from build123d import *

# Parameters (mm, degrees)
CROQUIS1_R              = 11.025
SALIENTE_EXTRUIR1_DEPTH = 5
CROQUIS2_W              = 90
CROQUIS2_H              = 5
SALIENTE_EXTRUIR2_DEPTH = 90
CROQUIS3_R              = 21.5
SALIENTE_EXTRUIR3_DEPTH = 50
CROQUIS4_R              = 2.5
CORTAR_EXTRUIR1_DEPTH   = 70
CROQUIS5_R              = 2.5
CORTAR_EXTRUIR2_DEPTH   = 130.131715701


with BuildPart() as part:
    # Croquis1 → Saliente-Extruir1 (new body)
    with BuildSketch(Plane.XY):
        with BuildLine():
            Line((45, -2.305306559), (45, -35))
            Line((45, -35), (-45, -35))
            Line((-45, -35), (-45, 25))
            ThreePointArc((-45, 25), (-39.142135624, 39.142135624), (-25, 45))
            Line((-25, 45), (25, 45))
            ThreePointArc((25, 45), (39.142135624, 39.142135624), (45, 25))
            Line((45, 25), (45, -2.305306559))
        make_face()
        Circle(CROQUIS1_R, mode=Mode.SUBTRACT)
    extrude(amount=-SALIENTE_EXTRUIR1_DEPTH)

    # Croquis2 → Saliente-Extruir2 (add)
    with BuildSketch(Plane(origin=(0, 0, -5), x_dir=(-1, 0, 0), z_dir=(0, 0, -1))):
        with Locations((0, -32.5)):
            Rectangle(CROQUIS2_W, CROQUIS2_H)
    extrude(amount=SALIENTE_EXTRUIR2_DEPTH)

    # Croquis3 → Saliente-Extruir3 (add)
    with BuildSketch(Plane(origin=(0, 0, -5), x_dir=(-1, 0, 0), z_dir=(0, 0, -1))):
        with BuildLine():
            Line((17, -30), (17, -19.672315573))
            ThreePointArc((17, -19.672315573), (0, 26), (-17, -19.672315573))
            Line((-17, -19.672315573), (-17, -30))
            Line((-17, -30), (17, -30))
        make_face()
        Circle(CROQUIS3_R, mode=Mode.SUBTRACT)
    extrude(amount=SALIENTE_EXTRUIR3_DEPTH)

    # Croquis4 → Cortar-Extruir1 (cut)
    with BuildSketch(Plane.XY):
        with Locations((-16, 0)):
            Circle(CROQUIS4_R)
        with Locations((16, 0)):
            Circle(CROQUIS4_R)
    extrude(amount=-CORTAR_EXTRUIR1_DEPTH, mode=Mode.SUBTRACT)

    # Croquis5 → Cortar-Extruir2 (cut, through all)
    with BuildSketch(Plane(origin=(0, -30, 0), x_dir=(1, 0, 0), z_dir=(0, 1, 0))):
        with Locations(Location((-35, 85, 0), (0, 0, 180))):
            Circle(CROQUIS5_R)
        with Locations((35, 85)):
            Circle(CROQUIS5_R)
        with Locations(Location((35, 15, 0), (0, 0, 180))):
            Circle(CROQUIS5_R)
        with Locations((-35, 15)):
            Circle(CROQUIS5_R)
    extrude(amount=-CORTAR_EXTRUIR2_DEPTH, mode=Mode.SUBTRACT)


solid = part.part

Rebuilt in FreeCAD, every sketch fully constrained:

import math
import FreeCAD as App
import Part
import Sketcher

V = App.Vector
Q = App.Units.Quantity

doc = App.newDocument("Part")
body = doc.addObject("PartDesign::Body", "Body")

# Sketch on XY plane
sketch1 = doc.addObject("Sketcher::SketchObject", "Sketch")
body.addObject(sketch1)
sketch1.AttachmentSupport = (doc.XY_Plane, [""])
sketch1.MapMode = "FlatFace"
sketch1.addGeometry(Part.LineSegment(V(-45, -35, 0), V(45, -35, 0)), False)
sketch1.addGeometry(Part.LineSegment(V(45, -35, 0), V(45, 25, 0)), False)
sketch1.addGeometry(Part.ArcOfCircle(Part.Circle(V(25, 25, 0), V(0, 0, 1), 20), math.radians(0), math.radians(90)), False)
sketch1.addGeometry(Part.LineSegment(V(25, 45, 0), V(-25, 45, 0)), False)
sketch1.addGeometry(Part.ArcOfCircle(Part.Circle(V(-25, 25, 0), V(0, 0, 1), 20), math.radians(90), math.radians(180)), False)
sketch1.addGeometry(Part.LineSegment(V(-45, 25, 0), V(-45, -35, 0)), False)
sketch1.addGeometry(Part.Circle(V(0, 0, 0), V(0, 0, 1), 11), False)
sketch1.addConstraint(Sketcher.Constraint("Coincident", 0, 2, 1, 1))
sketch1.addConstraint(Sketcher.Constraint("Tangent", 1, 2, 2, 1))
sketch1.addConstraint(Sketcher.Constraint("Tangent", 2, 2, 3, 1))
sketch1.addConstraint(Sketcher.Constraint("Tangent", 3, 2, 4, 1))
sketch1.addConstraint(Sketcher.Constraint("Tangent", 4, 2, 5, 1))
sketch1.addConstraint(Sketcher.Constraint("Coincident", 5, 2, 0, 1))
sketch1.addConstraint(Sketcher.Constraint("Horizontal", 0))
sketch1.addConstraint(Sketcher.Constraint("Vertical", 1))
sketch1.addConstraint(Sketcher.Constraint("Horizontal", 3))
sketch1.addConstraint(Sketcher.Constraint("Vertical", 5))
sketch1.addConstraint(Sketcher.Constraint("Coincident", 6, 3, -1, 1))
sketch1.addConstraint(Sketcher.Constraint("Equal", 2, 4))
sketch1.addConstraint(Sketcher.Constraint("Radius", 2, Q("20 mm")))
sketch1.addConstraint(Sketcher.Constraint("Diameter", 6, Q("22.05 mm")))
sketch1.addConstraint(Sketcher.Constraint("DistanceX", 0, 1, 0, 2, Q("90 mm")))
sketch1.addConstraint(Sketcher.Constraint("DistanceY", 1, 1, 1, 2, Q("60 mm")))
sketch1.addConstraint(Sketcher.Constraint("DistanceX", -1, 1, 2, 3, Q("25 mm")))
sketch1.addConstraint(Sketcher.Constraint("DistanceY", -1, 1, 2, 3, Q("25 mm")))
pad1 = doc.addObject("PartDesign::Pad", "Pad")
body.addObject(pad1)
pad1.Profile = sketch1
pad1.Length = 5
pad1.Reversed = True

# Sketch on XY plane
sketch2 = doc.addObject("Sketcher::SketchObject", "Sketch001")
body.addObject(sketch2)
sketch2.AttachmentSupport = (doc.XY_Plane, [""])
sketch2.MapMode = "FlatFace"
sketch2.AttachmentOffset = App.Placement(V(0, 0, -5), App.Rotation())
sketch2.addGeometry(Part.LineSegment(V(45, -30, 0), V(45, -35, 0)), False)
sketch2.addGeometry(Part.LineSegment(V(45, -35, 0), V(-45, -35, 0)), False)
sketch2.addGeometry(Part.LineSegment(V(-45, -35, 0), V(-45, -30, 0)), False)
sketch2.addGeometry(Part.LineSegment(V(-45, -30, 0), V(45, -30, 0)), False)
sketch2.addConstraint(Sketcher.Constraint("Coincident", 0, 2, 1, 1))
sketch2.addConstraint(Sketcher.Constraint("Coincident", 1, 2, 2, 1))
sketch2.addConstraint(Sketcher.Constraint("Coincident", 2, 2, 3, 1))
sketch2.addConstraint(Sketcher.Constraint("Coincident", 3, 2, 0, 1))
sketch2.addConstraint(Sketcher.Constraint("Vertical", 0))
sketch2.addConstraint(Sketcher.Constraint("Horizontal", 1))
sketch2.addConstraint(Sketcher.Constraint("Vertical", 2))
sketch2.addConstraint(Sketcher.Constraint("Horizontal", 3))
sketch2.addConstraint(Sketcher.Constraint("DistanceX", 1, 2, 1, 1, Q("90 mm")))
sketch2.addConstraint(Sketcher.Constraint("DistanceY", 0, 2, 0, 1, Q("5 mm")))
sketch2.addConstraint(Sketcher.Constraint("DistanceX", -1, 1, 0, 2, Q("45 mm")))
sketch2.addConstraint(Sketcher.Constraint("DistanceY", 0, 2, -1, 1, Q("35 mm")))
pad2 = doc.addObject("PartDesign::Pad", "Pad001")
body.addObject(pad2)
pad2.Profile = sketch2
pad2.Length = 90
pad2.Reversed = True

# Sketch on XY plane
sketch3 = doc.addObject("Sketcher::SketchObject", "Sketch002")
body.addObject(sketch3)
sketch3.AttachmentSupport = (doc.XY_Plane, [""])
sketch3.MapMode = "FlatFace"
sketch3.AttachmentOffset = App.Placement(V(0, 0, -5), App.Rotation())
sketch3.addGeometry(Part.LineSegment(V(-17, -30, 0), V(-17, -20, 0)), False)
sketch3.addGeometry(Part.ArcOfCircle(Part.Circle(V(0, 0, 0), V(0, 0, 1), 26), math.radians(-49), math.radians(229)), False)
sketch3.addGeometry(Part.LineSegment(V(17, -20, 0), V(17, -30, 0)), False)
sketch3.addGeometry(Part.LineSegment(V(17, -30, 0), V(-17, -30, 0)), False)
sketch3.addGeometry(Part.Circle(V(0, 0, 0), V(0, 0, 1), 22), False)
sketch3.addConstraint(Sketcher.Constraint("Coincident", 0, 2, 1, 2))
sketch3.addConstraint(Sketcher.Constraint("Coincident", 1, 1, 2, 1))
sketch3.addConstraint(Sketcher.Constraint("Coincident", 2, 2, 3, 1))
sketch3.addConstraint(Sketcher.Constraint("Coincident", 3, 2, 0, 1))
sketch3.addConstraint(Sketcher.Constraint("Vertical", 0))
sketch3.addConstraint(Sketcher.Constraint("Vertical", 2))
sketch3.addConstraint(Sketcher.Constraint("Horizontal", 3))
sketch3.addConstraint(Sketcher.Constraint("Coincident", 1, 3, -1, 1))
sketch3.addConstraint(Sketcher.Constraint("Coincident", 4, 3, -1, 1))
sketch3.addConstraint(Sketcher.Constraint("Horizontal", 0, 2, 1, 1))
sketch3.addConstraint(Sketcher.Constraint("Diameter", 4, Q("43 mm")))
sketch3.addConstraint(Sketcher.Constraint("Radius", 1, Q("26 mm")))
sketch3.addConstraint(Sketcher.Constraint("DistanceX", 3, 2, 3, 1, Q("34 mm")))
sketch3.addConstraint(Sketcher.Constraint("DistanceY", 2, 2, -1, 1, Q("30 mm")))
pad3 = doc.addObject("PartDesign::Pad", "Pad002")
body.addObject(pad3)
pad3.Profile = sketch3
pad3.Length = 50
pad3.Reversed = True

# Sketch on XY plane
sketch4 = doc.addObject("Sketcher::SketchObject", "Sketch003")
body.addObject(sketch4)
sketch4.AttachmentSupport = (doc.XY_Plane, [""])
sketch4.MapMode = "FlatFace"
sketch4.addGeometry(Part.Circle(V(-16, 0, 0), V(0, 0, 1), 2.5), False)
sketch4.addGeometry(Part.Circle(V(16, 0, 0), V(0, 0, 1), 2.5), False)
sketch4.addConstraint(Sketcher.Constraint("Equal", 0, 1))
sketch4.addConstraint(Sketcher.Constraint("Symmetric", 0, 3, 1, 3, -1, 1))
sketch4.addConstraint(Sketcher.Constraint("PointOnObject", 0, 3, -1))
sketch4.addConstraint(Sketcher.Constraint("Diameter", 0, Q("5 mm")))
sketch4.addConstraint(Sketcher.Constraint("DistanceX", 0, 3, -1, 1, Q("16 mm")))
pocket1 = doc.addObject("PartDesign::Pocket", "Pocket")
body.addObject(pocket1)
pocket1.Profile = sketch4
pocket1.Length = 70

# Sketch on XZ plane
sketch5 = doc.addObject("Sketcher::SketchObject", "Sketch004")
body.addObject(sketch5)
sketch5.AttachmentSupport = (doc.XZ_Plane, [""])
sketch5.MapMode = "FlatFace"
sketch5.AttachmentOffset = App.Placement(V(0, 0, 30), App.Rotation())
sketch5.addGeometry(Part.Circle(V(-35, -85, 0), V(0, 0, 1), 2.5), False)
sketch5.addGeometry(Part.Circle(V(35, -85, 0), V(0, 0, 1), 2.5), False)
sketch5.addGeometry(Part.Circle(V(35, -15, 0), V(0, 0, 1), 2.5), False)
sketch5.addGeometry(Part.Circle(V(-35, -15, 0), V(0, 0, 1), 2.5), False)
sketch5.addConstraint(Sketcher.Constraint("Equal", 0, 1))
sketch5.addConstraint(Sketcher.Constraint("Equal", 1, 2))
sketch5.addConstraint(Sketcher.Constraint("Equal", 2, 3))
sketch5.addConstraint(Sketcher.Constraint("Symmetric", 0, 3, 1, 3, -2))
sketch5.addConstraint(Sketcher.Constraint("Symmetric", 2, 3, 3, 3, -2))
sketch5.addConstraint(Sketcher.Constraint("Vertical", 1, 3, 2, 3))
sketch5.addConstraint(Sketcher.Constraint("Diameter", 0, Q("5 mm")))
sketch5.addConstraint(Sketcher.Constraint("DistanceX", 0, 3, -1, 1, Q("35 mm")))
sketch5.addConstraint(Sketcher.Constraint("DistanceY", 0, 3, -1, 1, Q("85 mm")))
sketch5.addConstraint(Sketcher.Constraint("DistanceY", 2, 3, -1, 1, Q("15 mm")))
pocket2 = doc.addObject("PartDesign::Pocket", "Pocket001")
body.addObject(pocket2)
pocket2.Profile = sketch5
pocket2.Type = "ThroughAll"
pocket2.Reversed = True

doc.recompute()
